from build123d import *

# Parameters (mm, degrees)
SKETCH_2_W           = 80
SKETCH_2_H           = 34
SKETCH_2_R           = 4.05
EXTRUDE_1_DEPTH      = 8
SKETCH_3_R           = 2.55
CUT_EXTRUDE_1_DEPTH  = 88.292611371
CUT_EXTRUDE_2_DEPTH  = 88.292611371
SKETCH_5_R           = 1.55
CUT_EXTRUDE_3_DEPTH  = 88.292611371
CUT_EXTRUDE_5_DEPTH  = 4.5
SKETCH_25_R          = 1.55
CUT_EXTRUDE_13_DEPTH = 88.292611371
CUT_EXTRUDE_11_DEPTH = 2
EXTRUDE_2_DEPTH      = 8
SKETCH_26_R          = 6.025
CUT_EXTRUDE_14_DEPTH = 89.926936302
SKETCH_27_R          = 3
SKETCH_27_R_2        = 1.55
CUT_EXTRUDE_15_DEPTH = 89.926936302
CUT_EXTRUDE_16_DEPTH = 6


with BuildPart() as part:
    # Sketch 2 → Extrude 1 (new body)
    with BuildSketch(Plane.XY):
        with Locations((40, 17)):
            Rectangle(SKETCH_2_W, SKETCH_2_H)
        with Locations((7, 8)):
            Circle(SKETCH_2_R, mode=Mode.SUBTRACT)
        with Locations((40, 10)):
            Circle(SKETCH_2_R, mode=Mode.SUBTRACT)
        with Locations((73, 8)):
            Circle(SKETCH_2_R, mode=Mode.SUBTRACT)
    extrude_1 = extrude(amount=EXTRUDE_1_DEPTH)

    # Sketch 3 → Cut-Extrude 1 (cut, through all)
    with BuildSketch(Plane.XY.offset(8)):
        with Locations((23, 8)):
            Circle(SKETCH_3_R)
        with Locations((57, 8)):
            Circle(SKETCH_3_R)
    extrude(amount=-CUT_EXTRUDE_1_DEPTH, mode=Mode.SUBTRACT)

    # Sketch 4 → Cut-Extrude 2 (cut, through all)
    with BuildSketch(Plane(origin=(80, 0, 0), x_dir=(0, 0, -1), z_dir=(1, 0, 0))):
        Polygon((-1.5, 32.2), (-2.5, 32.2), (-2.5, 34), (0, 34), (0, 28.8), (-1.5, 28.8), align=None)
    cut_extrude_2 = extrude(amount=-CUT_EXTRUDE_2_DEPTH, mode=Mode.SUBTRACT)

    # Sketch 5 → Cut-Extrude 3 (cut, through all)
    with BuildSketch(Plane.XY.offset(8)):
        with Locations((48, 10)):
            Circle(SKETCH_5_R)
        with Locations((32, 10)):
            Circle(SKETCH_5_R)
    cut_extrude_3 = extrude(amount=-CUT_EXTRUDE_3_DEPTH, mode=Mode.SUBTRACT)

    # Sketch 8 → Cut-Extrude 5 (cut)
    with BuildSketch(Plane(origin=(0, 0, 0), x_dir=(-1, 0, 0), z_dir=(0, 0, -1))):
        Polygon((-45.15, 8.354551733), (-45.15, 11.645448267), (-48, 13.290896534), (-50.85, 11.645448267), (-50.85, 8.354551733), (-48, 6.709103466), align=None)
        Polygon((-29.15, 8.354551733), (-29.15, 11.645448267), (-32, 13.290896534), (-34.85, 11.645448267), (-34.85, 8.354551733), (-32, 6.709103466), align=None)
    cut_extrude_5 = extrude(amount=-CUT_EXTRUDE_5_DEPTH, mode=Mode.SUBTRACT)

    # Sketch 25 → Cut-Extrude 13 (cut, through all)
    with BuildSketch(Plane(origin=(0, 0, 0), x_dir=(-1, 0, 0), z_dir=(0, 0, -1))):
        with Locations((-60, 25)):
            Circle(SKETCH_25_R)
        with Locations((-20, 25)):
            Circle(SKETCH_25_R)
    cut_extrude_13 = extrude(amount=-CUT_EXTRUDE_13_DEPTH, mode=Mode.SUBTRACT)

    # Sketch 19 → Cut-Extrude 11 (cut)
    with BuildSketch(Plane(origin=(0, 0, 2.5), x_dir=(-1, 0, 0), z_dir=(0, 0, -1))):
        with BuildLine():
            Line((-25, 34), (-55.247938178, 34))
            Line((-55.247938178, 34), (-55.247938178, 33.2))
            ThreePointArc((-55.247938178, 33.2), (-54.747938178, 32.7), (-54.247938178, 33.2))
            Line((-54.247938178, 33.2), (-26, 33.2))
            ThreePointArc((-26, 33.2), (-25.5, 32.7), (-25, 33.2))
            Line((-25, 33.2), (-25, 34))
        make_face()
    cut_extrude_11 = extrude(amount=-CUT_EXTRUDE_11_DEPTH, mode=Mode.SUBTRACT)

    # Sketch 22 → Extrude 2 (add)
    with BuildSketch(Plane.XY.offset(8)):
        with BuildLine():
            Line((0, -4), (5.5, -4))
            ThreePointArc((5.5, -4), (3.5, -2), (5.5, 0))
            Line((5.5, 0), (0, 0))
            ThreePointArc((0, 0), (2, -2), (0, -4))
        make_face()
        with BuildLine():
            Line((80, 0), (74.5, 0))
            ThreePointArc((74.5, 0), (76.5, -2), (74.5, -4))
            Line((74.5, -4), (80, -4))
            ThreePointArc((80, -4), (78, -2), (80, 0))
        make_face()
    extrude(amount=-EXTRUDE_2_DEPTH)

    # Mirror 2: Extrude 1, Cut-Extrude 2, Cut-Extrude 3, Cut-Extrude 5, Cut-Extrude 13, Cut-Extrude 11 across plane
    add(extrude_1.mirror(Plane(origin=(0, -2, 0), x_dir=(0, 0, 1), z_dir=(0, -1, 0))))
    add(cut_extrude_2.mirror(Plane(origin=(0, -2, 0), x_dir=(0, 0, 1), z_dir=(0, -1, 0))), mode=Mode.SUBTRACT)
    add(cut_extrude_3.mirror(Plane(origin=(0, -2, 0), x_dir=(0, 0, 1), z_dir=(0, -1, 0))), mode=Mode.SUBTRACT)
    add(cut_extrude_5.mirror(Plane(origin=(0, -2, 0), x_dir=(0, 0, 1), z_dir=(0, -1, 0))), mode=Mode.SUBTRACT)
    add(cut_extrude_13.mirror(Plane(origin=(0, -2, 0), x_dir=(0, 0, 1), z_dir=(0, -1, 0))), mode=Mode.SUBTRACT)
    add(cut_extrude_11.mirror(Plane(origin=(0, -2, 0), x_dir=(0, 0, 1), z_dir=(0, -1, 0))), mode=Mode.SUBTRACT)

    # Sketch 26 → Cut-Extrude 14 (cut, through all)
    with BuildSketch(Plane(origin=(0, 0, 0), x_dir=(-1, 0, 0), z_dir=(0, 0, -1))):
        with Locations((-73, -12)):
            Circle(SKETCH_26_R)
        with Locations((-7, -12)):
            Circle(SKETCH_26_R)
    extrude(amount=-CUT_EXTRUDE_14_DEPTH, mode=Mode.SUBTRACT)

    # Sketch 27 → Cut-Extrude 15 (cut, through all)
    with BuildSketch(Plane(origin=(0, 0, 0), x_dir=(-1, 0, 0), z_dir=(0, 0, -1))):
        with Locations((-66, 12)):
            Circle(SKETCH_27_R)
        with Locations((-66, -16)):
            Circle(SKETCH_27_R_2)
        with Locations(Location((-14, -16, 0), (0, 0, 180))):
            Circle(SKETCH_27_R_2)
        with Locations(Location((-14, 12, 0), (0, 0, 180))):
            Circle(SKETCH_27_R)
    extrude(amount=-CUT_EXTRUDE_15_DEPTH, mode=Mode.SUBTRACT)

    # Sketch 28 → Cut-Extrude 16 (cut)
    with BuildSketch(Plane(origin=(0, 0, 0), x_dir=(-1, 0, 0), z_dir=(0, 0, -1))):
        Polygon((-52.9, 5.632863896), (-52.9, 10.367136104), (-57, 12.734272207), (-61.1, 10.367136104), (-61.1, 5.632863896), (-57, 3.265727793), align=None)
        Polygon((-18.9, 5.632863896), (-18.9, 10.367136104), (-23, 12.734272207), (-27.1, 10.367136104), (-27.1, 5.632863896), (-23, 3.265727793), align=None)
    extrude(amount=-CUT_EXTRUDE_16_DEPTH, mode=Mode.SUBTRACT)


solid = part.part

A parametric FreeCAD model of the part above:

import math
import FreeCAD as App
import Part
import Sketcher

V = App.Vector
Q = App.Units.Quantity


def add_polygon(sketch, points):
    """Adds a closed chain of lines whose ends are joined by coincident constraints."""
    first, n = sketch.GeometryCount, len(points)
    for a, b in zip(points, points[1:] + points[:1]):
        sketch.addGeometry(Part.LineSegment(App.Vector(*a, 0), App.Vector(*b, 0)), False)
    for i in range(n):
        sketch.addConstraint(Sketcher.Constraint("Coincident", first + i, 2, first + (i + 1) % n, 1))

doc = App.newDocument("Part")
body = doc.addObject("PartDesign::Body", "Body")

sketch1 = doc.addObject("Sketcher::SketchObject", "Sketch")
body.addObject(sketch1)
sketch1.AttachmentSupport = (doc.XY_Plane, [""])
sketch1.MapMode = "FlatFace"
add_polygon(sketch1, [(0, 34), (0, 0), (80, 0), (80, 34)])
sketch1.addGeometry(Part.Circle(V(7, 8, 0), V(0, 0, 1), 4), False)
sketch1.addGeometry(Part.Circle(V(73, 8, 0), V(0, 0, 1), 4), False)
sketch1.addGeometry(Part.Circle(V(40, 10, 0), V(0, 0, 1), 4), False)
sketch1.addConstraint(Sketcher.Constraint("Vertical", 0))
sketch1.addConstraint(Sketcher.Constraint("Horizontal", 1))
sketch1.addConstraint(Sketcher.Constraint("Vertical", 2))
sketch1.addConstraint(Sketcher.Constraint("Horizontal", 3))
sketch1.addConstraint(Sketcher.Constraint("Coincident", 0, 2, -1, 1))
sketch1.addConstraint(Sketcher.Constraint("Equal", 4, 5))
sketch1.addConstraint(Sketcher.Constraint("Equal", 5, 6))
sketch1.addConstraint(Sketcher.Constraint("Horizontal", 4, 3, 5, 3))
sketch1.addConstraint(Sketcher.Constraint("Diameter", 4, Q("8.1 mm")))
sketch1.addConstraint(Sketcher.Constraint("DistanceX", 1, 1, 1, 2, Q("80 mm")))
sketch1.addConstraint(Sketcher.Constraint("DistanceY", 0, 2, 0, 1, Q("34 mm")))
sketch1.addConstraint(Sketcher.Constraint("DistanceX", -1, 1, 4, 3, Q("7 mm")))
sketch1.addConstraint(Sketcher.Constraint("DistanceY", -1, 1, 4, 3, Q("8 mm")))
sketch1.addConstraint(Sketcher.Constraint("DistanceX", -1, 1, 5, 3, Q("73 mm")))
sketch1.addConstraint(Sketcher.Constraint("DistanceX", -1, 1, 6, 3, Q("40 mm")))
sketch1.addConstraint(Sketcher.Constraint("DistanceY", -1, 1, 6, 3, Q("10 mm")))
pad1 = doc.addObject("PartDesign::Pad", "Pad")
body.addObject(pad1)
pad1.Profile = sketch1
pad1.Length = 8

sketch2 = doc.addObject("Sketcher::SketchObject", "Sketch001")
body.addObject(sketch2)
sketch2.AttachmentSupport = (doc.XY_Plane, [""])
sketch2.MapMode = "FlatFace"
sketch2.AttachmentOffset = App.Placement(V(0, 0, 8), App.Rotation())
sketch2.addGeometry(Part.Circle(V(23, 8, 0), V(0, 0, 1), 2.5), False)
sketch2.addGeometry(Part.Circle(V(57, 8, 0), V(0, 0, 1), 2.5), False)
sketch2.addConstraint(Sketcher.Constraint("Equal", 0, 1))
sketch2.addConstraint(Sketcher.Constraint("Horizontal", 0, 3, 1, 3))
sketch2.addConstraint(Sketcher.Constraint("Diameter", 0, Q("5.1 mm")))
sketch2.addConstraint(Sketcher.Constraint("DistanceX", -1, 1, 0, 3, Q("23 mm")))
sketch2.addConstraint(Sketcher.Constraint("DistanceY", -1, 1, 0, 3, Q("8 mm")))
sketch2.addConstraint(Sketcher.Constraint("DistanceX", -1, 1, 1, 3, Q("57 mm")))
pocket1 = doc.addObject("PartDesign::Pocket", "Pocket")
body.addObject(pocket1)
pocket1.Profile = sketch2
pocket1.Type = "ThroughAll"

sketch3 = doc.addObject("Sketcher::SketchObject", "Sketch002")
body.addObject(sketch3)
sketch3.AttachmentSupport = (doc.YZ_Plane, [""])
sketch3.MapMode = "FlatFace"
sketch3.AttachmentOffset = App.Placement(V(0, 0, 80), App.Rotation())
add_polygon(sketch3, [(32.2, 2.5), (32.2, 1.5), (28.8, 1.5), (28.8, 0), (34, 0), (34, 2.5)])
sketch3.addConstraint(Sketcher.Constraint("Vertical", 0))
sketch3.addConstraint(Sketcher.Constraint("Horizontal", 1))
sketch3.addConstraint(Sketcher.Constraint("Vertical", 2))
sketch3.addConstraint(Sketcher.Constraint("Horizontal", 3))
sketch3.addConstraint(Sketcher.Constraint("Vertical", 4))
sketch3.addConstraint(Sketcher.Constraint("Horizontal", 5))
sketch3.addConstraint(Sketcher.Constraint("PointOnObject", 2, 2, -1))
sketch3.addConstraint(Sketcher.Constraint("DistanceY", 0, 2, 0, 1, Q("1 mm")))
sketch3.addConstraint(Sketcher.Constraint("DistanceX", 1, 2, 1, 1, Q("3.4 mm")))
sketch3.addConstraint(Sketcher.Constraint("DistanceX", 3, 1, 3, 2, Q("5.2 mm")))
sketch3.addConstraint(Sketcher.Constraint("DistanceY", 2, 2, 2, 1, Q("1.5 mm")))
sketch3.addConstraint(Sketcher.Constraint("DistanceX", -1, 1, 3, 2, Q("34 mm")))
pocket2 = doc.addObject("PartDesign::Pocket", "Pocket001")
body.addObject(pocket2)
pocket2.Profile = sketch3
pocket2.Type = "ThroughAll"

sketch4 = doc.addObject("Sketcher::SketchObject", "Sketch003")
body.addObject(sketch4)
sketch4.AttachmentSupport = (doc.XY_Plane, [""])
sketch4.MapMode = "FlatFace"
sketch4.AttachmentOffset = App.Placement(V(0, 0, 8), App.Rotation())
sketch4.addGeometry(Part.Circle(V(48, 10, 0), V(0, 0, 1), 1.6), False)
sketch4.addGeometry(Part.Circle(V(32, 10, 0), V(0, 0, 1), 1.6), False)
sketch4.addConstraint(Sketcher.Constraint("Equal", 0, 1))
sketch4.addConstraint(Sketcher.Constraint("Horizontal", 0, 3, 1, 3))
sketch4.addConstraint(Sketcher.Constraint("Diameter", 0, Q("3.1 mm")))
sketch4.addConstraint(Sketcher.Constraint("DistanceX", -1, 1, 0, 3, Q("48 mm")))
sketch4.addConstraint(Sketcher.Constraint("DistanceY", -1, 1, 0, 3, Q("10 mm")))
sketch4.addConstraint(Sketcher.Constraint("DistanceX", -1, 1, 1, 3, Q("32 mm")))
pocket3 = doc.addObject("PartDesign::Pocket", "Pocket002")
body.addObject(pocket3)
pocket3.Profile = sketch4
pocket3.Type = "ThroughAll"

sketch5 = doc.addObject("Sketcher::SketchObject", "Sketch004")
body.addObject(sketch5)
sketch5.AttachmentSupport = (doc.XY_Plane, [""])
sketch5.MapMode = "FlatFace"
add_polygon(sketch5, [(45.1, 8.4), (45.1, 11.6), (48, 13.3), (50.9, 11.6), (50.9, 8.4), (48, 6.7)])
add_polygon(sketch5, [(29.1, 8.4), (29.1, 11.6), (32, 13.3), (34.9, 11.6), (34.9, 8.4), (32, 6.7)])
sketch5.addConstraint(Sketcher.Constraint("Vertical", 0))
sketch5.addConstraint(Sketcher.Constraint("Vertical", 3))
sketch5.addConstraint(Sketcher.Constraint("Vertical", 6))
sketch5.addConstraint(Sketcher.Constraint("Vertical", 9))
sketch5.addConstraint(Sketcher.Constraint("Parallel", 1, 4))
sketch5.addConstraint(Sketcher.Constraint("Parallel", 2, 5))
sketch5.addConstraint(Sketcher.Constraint("Parallel", 4, 7))
sketch5.addConstraint(Sketcher.Constraint("Parallel", 5, 8))
sketch5.addConstraint(Sketcher.Constraint("Parallel", 7, 10))
sketch5.addConstraint(Sketcher.Constraint("Parallel", 8, 11))
sketch5.addConstraint(Sketcher.Constraint("Horizontal", 0, 2, 2, 2))
sketch5.addConstraint(Sketcher.Constraint("Horizontal", 3, 2, 5, 2))
sketch5.addConstraint(Sketcher.Constraint("Horizontal", 2, 2, 6, 2))
sketch5.addConstraint(Sketcher.Constraint("Horizontal", 1, 2, 7, 2))
sketch5.addConstraint(Sketcher.Constraint("Horizontal", 6, 2, 8, 2))
sketch5.addConstraint(Sketcher.Constraint("Horizontal", 5, 2, 9, 2))
sketch5.addConstraint(Sketcher.Constraint("Horizontal", 4, 2, 10, 2))
sketch5.addConstraint(Sketcher.Constraint("Vertical", 1, 2, 4, 2))
sketch5.addConstraint(Sketcher.Constraint("Angle", 1, Q("30 deg")))
sketch5.addConstraint(Sketcher.Constraint("DistanceX", -1, 1, 1, 2, Q("48 mm")))
sketch5.addConstraint(Sketcher.Constraint("DistanceX", -1, 1, 7, 2, Q("32 mm")))
sketch5.addConstraint(Sketcher.Constraint("DistanceX", 0, 2, 2, 2, Q("5.7 mm")))
sketch5.addConstraint(Sketcher.Constraint("DistanceY", 0, 1, 0, 2, Q("3.290897 mm")))
sketch5.addConstraint(Sketcher.Constraint("DistanceY", -1, 1, 0, 2, Q("11.645448 mm")))
pocket4 = doc.addObject("PartDesign::Pocket", "Pocket003")
body.addObject(pocket4)
pocket4.Profile = sketch5
pocket4.Length = 4.5
pocket4.Reversed = True

sketch6 = doc.addObject("Sketcher::SketchObject", "Sketch005")
body.addObject(sketch6)
sketch6.AttachmentSupport = (doc.XY_Plane, [""])
sketch6.MapMode = "FlatFace"
sketch6.addGeometry(Part.Circle(V(60, 25, 0), V(0, 0, 1), 1.6), False)
sketch6.addGeometry(Part.Circle(V(20, 25, 0), V(0, 0, 1), 1.6), False)
sketch6.addConstraint(Sketcher.Constraint("Equal", 0, 1))
sketch6.addConstraint(Sketcher.Constraint("Horizontal", 0, 3, 1, 3))
sketch6.addConstraint(Sketcher.Constraint("Diameter", 0, Q("3.1 mm")))
sketch6.addConstraint(Sketcher.Constraint("DistanceX", -1, 1, 0, 3, Q("60 mm")))
sketch6.addConstraint(Sketcher.Constraint("DistanceY", -1, 1, 0, 3, Q("25 mm")))
sketch6.addConstraint(Sketcher.Constraint("DistanceX", -1, 1, 1, 3, Q("20 mm")))
pocket5 = doc.addObject("PartDesign::Pocket", "Pocket004")
body.addObject(pocket5)
pocket5.Profile = sketch6
pocket5.Type = "ThroughAll"
pocket5.Reversed = True

sketch7 = doc.addObject("Sketcher::SketchObject", "Sketch006")
body.addObject(sketch7)
sketch7.AttachmentSupport = (doc.XY_Plane, [""])
sketch7.MapMode = "FlatFace"
sketch7.AttachmentOffset = App.Placement(V(0, 0, 2.5), App.Rotation())
sketch7.addGeometry(Part.LineSegment(V(25, 34, 0), V(55.2, 34, 0)), False)
sketch7.addGeometry(Part.LineSegment(V(55.2, 34, 0), V(55.2, 33.2, 0)), False)
sketch7.addGeometry(Part.ArcOfCircle(Part.Circle(V(54.7, 33.2, 0), V(0, 0, 1), 0.5), math.radians(180), math.radians(360)), False)
sketch7.addGeometry(Part.LineSegment(V(54.2, 33.2, 0), V(26, 33.2, 0)), False)
sketch7.addGeometry(Part.ArcOfCircle(Part.Circle(V(25.5, 33.2, 0), V(0, 0, 1), 0.5), math.radians(180), math.radians(360)), False)
sketch7.addGeometry(Part.LineSegment(V(25, 33.2, 0), V(25, 34, 0)), False)
sketch7.addConstraint(Sketcher.Constraint("Coincident", 0, 2, 1, 1))
sketch7.addConstraint(Sketcher.Constraint("Tangent", 1, 2, 2, 2))
sketch7.addConstraint(Sketcher.Constraint("Coincident", 2, 1, 3, 1))
sketch7.addConstraint(Sketcher.Constraint("Coincident", 3, 2, 4, 2))
sketch7.addConstraint(Sketcher.Constraint("Tangent", 4, 1, 5, 1))
sketch7.addConstraint(Sketcher.Constraint("Coincident", 5, 2, 0, 1))
sketch7.addConstraint(Sketcher.Constraint("Horizontal", 0))
sketch7.addConstraint(Sketcher.Constraint("Vertical", 1))
sketch7.addConstraint(Sketcher.Constraint("Horizontal", 3))
sketch7.addConstraint(Sketcher.Constraint("Vertical", 5))
sketch7.addConstraint(Sketcher.Constraint("Equal", 2, 4))
sketch7.addConstraint(Sketcher.Constraint("Horizontal", 2, 3, 4, 3))
sketch7.addConstraint(Sketcher.Constraint("Horizontal", 1, 2, 2, 1))
sketch7.addConstraint(Sketcher.Constraint("Radius", 2, Q("0.5 mm")))
sketch7.addConstraint(Sketcher.Constraint("DistanceY", 1, 2, 1, 1, Q("0.8 mm")))
sketch7.addConstraint(Sketcher.Constraint("DistanceY", -1, 1, 0, 2, Q("34 mm")))
sketch7.addConstraint(Sketcher.Constraint("DistanceX", -1, 1, 3, 2, Q("26 mm")))
sketch7.addConstraint(Sketcher.Constraint("DistanceX", 0, 1, 0, 2, Q("30.247938 mm")))
pocket6 = doc.addObject("PartDesign::Pocket", "Pocket005")
body.addObject(pocket6)
pocket6.Profile = sketch7
pocket6.Length = 2
pocket6.Reversed = True

sketch8 = doc.addObject("Sketcher::SketchObject", "Sketch007")
body.addObject(sketch8)
sketch8.AttachmentSupport = (doc.XY_Plane, [""])
sketch8.MapMode = "FlatFace"
sketch8.AttachmentOffset = App.Placement(V(0, 0, 8), App.Rotation())
sketch8.addGeometry(Part.LineSegment(V(0, -4, 0), V(5.5, -4, 0)), False)
sketch8.addGeometry(Part.ArcOfCircle(Part.Circle(V(5.5, -2, 0), V(0, 0, 1), 2), math.radians(90), math.radians(270)), False)
sketch8.addGeometry(Part.LineSegment(V(5.5, 0, 0), V(0, 0, 0)), False)
sketch8.addGeometry(Part.ArcOfCircle(Part.Circle(V(0, -2, 0), V(0, 0, 1), 2), math.radians(-90), math.radians(90)), False)
sketch8.addGeometry(Part.LineSegment(V(80, 0, 0), V(74.5, 0, 0)), False)
sketch8.addGeometry(Part.ArcOfCircle(Part.Circle(V(74.5, -2, 0), V(0, 0, 1), 2), math.radians(-90), math.radians(90)), False)
sketch8.addGeometry(Part.LineSegment(V(74.5, -4, 0), V(80, -4, 0)), False)
sketch8.addGeometry(Part.ArcOfCircle(Part.Circle(V(80, -2, 0), V(0, 0, 1), 2), math.radians(90), math.radians(270)), False)
sketch8.addConstraint(Sketcher.Constraint("Tangent", 0, 2, 1, 2))
sketch8.addConstraint(Sketcher.Constraint("Tangent", 1, 1, 2, 1))
sketch8.addConstraint(Sketcher.Constraint("Tangent", 2, 2, 3, 2))
sketch8.addConstraint(Sketcher.Constraint("Tangent", 3, 1, 0, 1))
sketch8.addConstraint(Sketcher.Constraint("Tangent", 4, 2, 5, 2))
sketch8.addConstraint(Sketcher.Constraint("Tangent", 5, 1, 6, 1))
sketch8.addConstraint(Sketcher.Constraint("Tangent", 6, 2, 7, 2))
sketch8.addConstraint(Sketcher.Constraint("Tangent", 7, 1, 4, 1))
sketch8.addConstraint(Sketcher.Constraint("Horizontal", 0))
sketch8.addConstraint(Sketcher.Constraint("Horizontal", 2))
sketch8.addConstraint(Sketcher.Constraint("Horizontal", 4))
sketch8.addConstraint(Sketcher.Constraint("Horizontal", 6))
sketch8.addConstraint(Sketcher.Constraint("Coincident", 2, 2, -1, 1))
sketch8.addConstraint(Sketcher.Constraint("Equal", 3, 5))
sketch8.addConstraint(Sketcher.Constraint("PointOnObject", 4, 2, -1))
sketch8.addConstraint(Sketcher.Constraint("Equal", 2, 4))
sketch8.addConstraint(Sketcher.Constraint("Radius", 1, Q("2 mm")))
sketch8.addConstraint(Sketcher.Constraint("DistanceX", 0, 1, 0, 2, Q("5.5 mm")))
sketch8.addConstraint(Sketcher.Constraint("DistanceX", -1, 1, 7, 3, Q("80 mm")))
pad2 = doc.addObject("PartDesign::Pad", "Pad001")
body.addObject(pad2)
pad2.Profile = sketch8
pad2.Length = 8
pad2.Reversed = True
doc.recompute()

datumplane = doc.addObject("PartDesign::Plane", "DatumPlane")
body.addObject(datumplane)
datumplane.AttachmentSupport = (doc.XZ_Plane, [""])
datumplane.MapMode = "FlatFace"
datumplane.AttachmentOffset = App.Placement(V(0, 0, 2), App.Rotation())
mirrored = doc.addObject("PartDesign::Mirrored", "Mirrored")
body.addObject(mirrored)
mirrored.Originals = [pad1, pocket2, pocket3, pocket4, pocket5, pocket6]
mirrored.MirrorPlane = (datumplane, [""])
body.Tip = mirrored

sketch9 = doc.addObject("Sketcher::SketchObject", "Sketch008")
body.addObject(sketch9)
sketch9.AttachmentSupport = (doc.XY_Plane, [""])
sketch9.MapMode = "FlatFace"
sketch9.addGeometry(Part.Circle(V(73, -12, 0), V(0, 0, 1), 6), False)
sketch9.addGeometry(Part.Circle(V(7, -12, 0), V(0, 0, 1), 6), False)
sketch9.addConstraint(Sketcher.Constraint("Equal", 0, 1))
sketch9.addConstraint(Sketcher.Constraint("Horizontal", 0, 3, 1, 3))
sketch9.addConstraint(Sketcher.Constraint("Diameter", 0, Q("12.05 mm")))
sketch9.addConstraint(Sketcher.Constraint("DistanceX", -1, 1, 0, 3, Q("73 mm")))
sketch9.addConstraint(Sketcher.Constraint("DistanceY", 0, 3, -1, 1, Q("12 mm")))
sketch9.addConstraint(Sketcher.Constraint("DistanceX", -1, 1, 1, 3, Q("7 mm")))
pocket7 = doc.addObject("PartDesign::Pocket", "Pocket006")
body.addObject(pocket7)
pocket7.Profile = sketch9
pocket7.Type = "ThroughAll"
pocket7.Reversed = True

sketch10 = doc.addObject("Sketcher::SketchObject", "Sketch009")
body.addObject(sketch10)
sketch10.AttachmentSupport = (doc.XY_Plane, [""])
sketch10.MapMode = "FlatFace"
sketch10.addGeometry(Part.Circle(V(66, 12, 0), V(0, 0, 1), 3), False)
sketch10.addGeometry(Part.Circle(V(66, -16, 0), V(0, 0, 1), 1.6), False)
sketch10.addGeometry(Part.Circle(V(14, -16, 0), V(0, 0, 1), 1.6), False)
sketch10.addGeometry(Part.Circle(V(14, 12, 0), V(0, 0, 1), 3), False)
sketch10.addConstraint(Sketcher.Constraint("Equal", 1, 2))
sketch10.addConstraint(Sketcher.Constraint("Equal", 0, 3))
sketch10.addConstraint(Sketcher.Constraint("Horizontal", 1, 3, 2, 3))
sketch10.addConstraint(Sketcher.Constraint("Horizontal", 0, 3, 3, 3))
sketch10.addConstraint(Sketcher.Constraint("Vertical", 0, 3, 1, 3))
sketch10.addConstraint(Sketcher.Constraint("Vertical", 2, 3, 3, 3))
sketch10.addConstraint(Sketcher.Constraint("Diameter", 0, Q("6 mm")))
sketch10.addConstraint(Sketcher.Constraint("Diameter", 1, Q("3.1 mm")))
sketch10.addConstraint(Sketcher.Constraint("DistanceX", -1, 1, 0, 3, Q("66 mm")))
sketch10.addConstraint(Sketcher.Constraint("DistanceY", -1, 1, 0, 3, Q("12 mm")))
sketch10.addConstraint(Sketcher.Constraint("DistanceY", 1, 3, -1, 1, Q("16 mm")))
sketch10.addConstraint(Sketcher.Constraint("DistanceX", -1, 1, 2, 3, Q("14 mm")))
pocket8 = doc.addObject("PartDesign::Pocket", "Pocket007")
body.addObject(pocket8)
pocket8.Profile = sketch10
pocket8.Type = "ThroughAll"
pocket8.Reversed = True

sketch11 = doc.addObject("Sketcher::SketchObject", "Sketch010")
body.addObject(sketch11)
sketch11.AttachmentSupport = (doc.XY_Plane, [""])
sketch11.MapMode = "FlatFace"
add_polygon(sketch11, [(52.9, 5.6), (52.9, 10.4), (57, 12.7), (61.1, 10.4), (61.1, 5.6), (57, 3.3)])
add_polygon(sketch11, [(18.9, 5.6), (18.9, 10.4), (23, 12.7), (27.1, 10.4), (27.1, 5.6), (23, 3.3)])
sketch11.addConstraint(Sketcher.Constraint("Vertical", 0))
sketch11.addConstraint(Sketcher.Constraint("Vertical", 3))
sketch11.addConstraint(Sketcher.Constraint("Vertical", 6))
sketch11.addConstraint(Sketcher.Constraint("Vertical", 9))
sketch11.addConstraint(Sketcher.Constraint("Parallel", 1, 4))
sketch11.addConstraint(Sketcher.Constraint("Parallel", 2, 5))
sketch11.addConstraint(Sketcher.Constraint("Parallel", 4, 7))
sketch11.addConstraint(Sketcher.Constraint("Parallel", 5, 8))
sketch11.addConstraint(Sketcher.Constraint("Parallel", 7, 10))
sketch11.addConstraint(Sketcher.Constraint("Parallel", 8, 11))
sketch11.addConstraint(Sketcher.Constraint("Horizontal", 0, 2, 2, 2))
sketch11.addConstraint(Sketcher.Constraint("Horizontal", 3, 2, 5, 2))
sketch11.addConstraint(Sketcher.Constraint("Horizontal", 2, 2, 6, 2))
sketch11.addConstraint(Sketcher.Constraint("Horizontal", 1, 2, 7, 2))
sketch11.addConstraint(Sketcher.Constraint("Horizontal", 6, 2, 8, 2))
sketch11.addConstraint(Sketcher.Constraint("Horizontal", 5, 2, 9, 2))
sketch11.addConstraint(Sketcher.Constraint("Horizontal", 4, 2, 10, 2))
sketch11.addConstraint(Sketcher.Constraint("Vertical", 1, 2, 4, 2))
sketch11.addConstraint(Sketcher.Constraint("Angle", 1, Q("30 deg")))
sketch11.addConstraint(Sketcher.Constraint("DistanceX", -1, 1, 1, 2, Q("57 mm")))
sketch11.addConstraint(Sketcher.Constraint("DistanceX", -1, 1, 7, 2, Q("23 mm")))
sketch11.addConstraint(Sketcher.Constraint("DistanceX", -1, 1, 0, 2, Q("52.9 mm")))
sketch11.addConstraint(Sketcher.Constraint("DistanceY", 0, 1, 0, 2, Q("4.734272 mm")))
sketch11.addConstraint(Sketcher.Constraint("DistanceY", -1, 1, 0, 2, Q("10.367136 mm")))
pocket9 = doc.addObject("PartDesign::Pocket", "Pocket008")
body.addObject(pocket9)
pocket9.Profile = sketch11
pocket9.Length = 6
pocket9.Reversed = True

doc.recompute()
